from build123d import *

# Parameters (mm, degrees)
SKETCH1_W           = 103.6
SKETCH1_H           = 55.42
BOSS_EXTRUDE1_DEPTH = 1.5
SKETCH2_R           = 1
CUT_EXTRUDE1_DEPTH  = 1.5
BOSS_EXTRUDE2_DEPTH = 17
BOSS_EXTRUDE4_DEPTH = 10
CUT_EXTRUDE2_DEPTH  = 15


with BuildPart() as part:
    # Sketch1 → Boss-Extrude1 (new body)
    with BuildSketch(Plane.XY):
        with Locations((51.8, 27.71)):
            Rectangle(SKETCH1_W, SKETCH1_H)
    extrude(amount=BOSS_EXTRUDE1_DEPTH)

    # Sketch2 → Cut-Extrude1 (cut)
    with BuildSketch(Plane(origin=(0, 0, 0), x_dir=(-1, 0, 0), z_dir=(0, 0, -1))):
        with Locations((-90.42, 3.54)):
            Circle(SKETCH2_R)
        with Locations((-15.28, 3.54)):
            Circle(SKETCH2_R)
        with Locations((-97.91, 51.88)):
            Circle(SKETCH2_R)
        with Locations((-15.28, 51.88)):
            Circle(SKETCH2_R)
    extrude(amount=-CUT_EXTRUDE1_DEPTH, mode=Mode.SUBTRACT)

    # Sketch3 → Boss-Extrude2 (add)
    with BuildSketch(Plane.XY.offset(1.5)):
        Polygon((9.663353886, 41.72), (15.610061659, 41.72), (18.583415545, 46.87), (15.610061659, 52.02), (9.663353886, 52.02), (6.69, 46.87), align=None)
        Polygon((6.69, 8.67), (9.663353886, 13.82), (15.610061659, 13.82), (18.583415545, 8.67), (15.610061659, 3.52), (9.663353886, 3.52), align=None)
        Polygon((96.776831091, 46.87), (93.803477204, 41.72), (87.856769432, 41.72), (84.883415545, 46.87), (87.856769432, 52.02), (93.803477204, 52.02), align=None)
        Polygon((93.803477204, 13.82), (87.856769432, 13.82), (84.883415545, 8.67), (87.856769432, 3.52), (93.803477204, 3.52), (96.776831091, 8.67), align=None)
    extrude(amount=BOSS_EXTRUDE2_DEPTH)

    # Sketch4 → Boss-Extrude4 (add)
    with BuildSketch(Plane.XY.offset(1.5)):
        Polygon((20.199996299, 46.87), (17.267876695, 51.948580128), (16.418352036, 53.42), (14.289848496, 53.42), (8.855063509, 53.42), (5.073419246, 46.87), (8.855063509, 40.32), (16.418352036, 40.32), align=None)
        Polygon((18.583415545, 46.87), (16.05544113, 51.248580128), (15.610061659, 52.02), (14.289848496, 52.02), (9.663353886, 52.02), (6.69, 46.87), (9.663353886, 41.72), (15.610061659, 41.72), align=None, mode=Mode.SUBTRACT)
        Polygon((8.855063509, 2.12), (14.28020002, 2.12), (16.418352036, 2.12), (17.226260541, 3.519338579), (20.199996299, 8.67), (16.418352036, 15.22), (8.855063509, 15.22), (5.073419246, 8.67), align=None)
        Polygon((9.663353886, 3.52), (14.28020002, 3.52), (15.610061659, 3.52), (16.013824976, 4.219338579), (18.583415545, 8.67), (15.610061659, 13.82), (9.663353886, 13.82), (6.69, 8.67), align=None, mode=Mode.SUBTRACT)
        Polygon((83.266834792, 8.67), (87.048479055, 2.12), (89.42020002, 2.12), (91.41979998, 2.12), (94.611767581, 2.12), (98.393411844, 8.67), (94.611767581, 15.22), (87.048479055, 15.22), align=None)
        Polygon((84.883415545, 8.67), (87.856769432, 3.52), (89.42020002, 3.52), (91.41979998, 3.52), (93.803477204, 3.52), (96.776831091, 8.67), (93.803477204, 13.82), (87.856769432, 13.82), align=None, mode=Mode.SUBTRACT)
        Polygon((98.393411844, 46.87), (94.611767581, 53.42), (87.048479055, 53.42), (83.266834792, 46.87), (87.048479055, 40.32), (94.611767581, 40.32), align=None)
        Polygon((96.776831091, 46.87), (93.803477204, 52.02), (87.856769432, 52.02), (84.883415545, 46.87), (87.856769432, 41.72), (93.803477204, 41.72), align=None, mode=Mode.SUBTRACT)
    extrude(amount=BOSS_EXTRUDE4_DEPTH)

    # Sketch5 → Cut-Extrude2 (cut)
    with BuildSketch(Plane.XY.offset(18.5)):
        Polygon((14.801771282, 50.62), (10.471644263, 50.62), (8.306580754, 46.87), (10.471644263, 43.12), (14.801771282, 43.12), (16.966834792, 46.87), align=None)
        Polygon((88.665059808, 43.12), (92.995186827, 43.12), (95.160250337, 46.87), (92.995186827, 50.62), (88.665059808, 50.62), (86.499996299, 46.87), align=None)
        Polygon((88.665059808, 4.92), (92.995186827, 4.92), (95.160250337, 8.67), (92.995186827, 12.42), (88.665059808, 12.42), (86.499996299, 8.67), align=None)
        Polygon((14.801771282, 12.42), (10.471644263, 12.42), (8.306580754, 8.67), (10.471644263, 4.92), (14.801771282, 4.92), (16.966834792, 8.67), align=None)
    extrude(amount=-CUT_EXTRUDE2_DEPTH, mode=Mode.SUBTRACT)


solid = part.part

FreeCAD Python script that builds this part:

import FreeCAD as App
import Part
import Sketcher
from FreeCAD import Vector
Q = App.Units.Quantity

doc = App.newDocument("Part")
body = doc.addObject("PartDesign::Body", "Body")

# Sketch on XY plane
sketch1 = body.newObject("Sketcher::SketchObject", "Sketch")
sketch1.AttachmentSupport = (doc.getObject("XY_Plane"), [""])
sketch1.MapMode = "FlatFace"
sketch1.addGeometry([
    Part.LineSegment(Vector(0, 55.42, 0), Vector(0, 0, 0)),
    Part.LineSegment(Vector(0, 0, 0), Vector(103.6, 0, 0)),
    Part.LineSegment(Vector(103.6, 0, 0), Vector(103.6, 55.42, 0)),
    Part.LineSegment(Vector(103.6, 55.42, 0), Vector(0, 55.42, 0)),
], False)
sketch1.addConstraint([
    Sketcher.Constraint("Coincident", 0, 2, 1, 1),
    Sketcher.Constraint("Coincident", 1, 2, 2, 1),
    Sketcher.Constraint("Coincident", 2, 2, 3, 1),
    Sketcher.Constraint("Coincident", 3, 2, 0, 1),
    Sketcher.Constraint("Vertical", 0),
    Sketcher.Constraint("Horizontal", 1),
    Sketcher.Constraint("Vertical", 2),
    Sketcher.Constraint("Horizontal", 3),
    Sketcher.Constraint("Coincident", 0, 2, -1, 1),
    Sketcher.Constraint("DistanceX", 1, 1, 1, 2, 103.6),
    Sketcher.Constraint("DistanceY", 0, 2, 0, 1, 55.42),
])
pad1 = body.newObject("PartDesign::Pad", "Pad")
pad1.Profile = sketch1
pad1.Length = 1.5

# Sketch on XY plane
sketch2 = body.newObject("Sketcher::SketchObject", "Sketch001")
sketch2.AttachmentSupport = (doc.getObject("XY_Plane"), [""])
sketch2.MapMode = "FlatFace"
sketch2.addGeometry([
    Part.Circle(Vector(90.42, 3.54, 0), Vector(0, 0, 1), 1),
    Part.Circle(Vector(15.28, 3.54, 0), Vector(0, 0, 1), 1),
    Part.Circle(Vector(97.91, 51.88, 0), Vector(0, 0, 1), 1),
    Part.Circle(Vector(15.28, 51.88, 0), Vector(0, 0, 1), 1),
], False)
sketch2.addConstraint([
    Sketcher.Constraint("Equal", 0, 1),
    Sketcher.Constraint("Equal", 1, 2),
    Sketcher.Constraint("Equal", 2, 3),
    Sketcher.Constraint("Horizontal", 0, 3, 1, 3),
    Sketcher.Constraint("Horizontal", 2, 3, 3, 3),
    Sketcher.Constraint("Vertical", 1, 3, 3, 3),
    Sketcher.Constraint("Diameter", 0, 2.0),
    Sketcher.Constraint("DistanceX", -1, 1, 0, 3, 90.42),
    Sketcher.Constraint("DistanceY", -1, 1, 0, 3, 3.54),
    Sketcher.Constraint("DistanceX", -1, 1, 1, 3, 15.28),
    Sketcher.Constraint("DistanceX", -1, 1, 2, 3, 97.91),
    Sketcher.Constraint("DistanceY", -1, 1, 2, 3, 51.88),
])
pocket1 = body.newObject("PartDesign::Pocket", "Pocket")
pocket1.Profile = sketch2
pocket1.Length = 1.5
pocket1.Reversed = True

# Sketch on XY plane
sketch3 = body.newObject("Sketcher::SketchObject", "Sketch002")
sketch3.AttachmentSupport = (doc.getObject("XY_Plane"), [""])
sketch3.MapMode = "FlatFace"
sketch3.AttachmentOffset = App.Placement(Vector(0, 0, 1.5), App.Rotation())
sketch3.addGeometry([
    Part.LineSegment(Vector(9.663354, 41.72, 0), Vector(15.610062, 41.72, 0)),  # 0
    Part.LineSegment(Vector(15.610062, 41.72, 0), Vector(18.583416, 46.87, 0)),  # 1
    Part.LineSegment(Vector(18.583416, 46.87, 0), Vector(15.610062, 52.02, 0)),  # 2
    Part.LineSegment(Vector(15.610062, 52.02, 0), Vector(9.663354, 52.02, 0)),  # 3
    Part.LineSegment(Vector(9.663354, 52.02, 0), Vector(6.69, 46.87, 0)),  # 4
    Part.LineSegment(Vector(6.69, 46.87, 0), Vector(9.663354, 41.72, 0)),  # 5
    Part.LineSegment(Vector(9.663354, 13.82, 0), Vector(6.69, 8.67, 0)),  # 6
    Part.LineSegment(Vector(6.69, 8.67, 0), Vector(9.663354, 3.52, 0)),  # 7
    Part.LineSegment(Vector(9.663354, 3.52, 0), Vector(15.610062, 3.52, 0)),  # 8
    Part.LineSegment(Vector(15.610062, 3.52, 0), Vector(18.583416, 8.67, 0)),  # 9
    Part.LineSegment(Vector(18.583416, 8.67, 0), Vector(15.610062, 13.82, 0)),  # 10
    Part.LineSegment(Vector(15.610062, 13.82, 0), Vector(9.663354, 13.82, 0)),  # 11
    Part.LineSegment(Vector(93.803477, 41.72, 0), Vector(96.776831, 46.87, 0)),  # 12
    Part.LineSegment(Vector(96.776831, 46.87, 0), Vector(93.803477, 52.02, 0)),  # 13
    Part.LineSegment(Vector(93.803477, 52.02, 0), Vector(87.856769, 52.02, 0)),  # 14
    Part.LineSegment(Vector(87.856769, 52.02, 0), Vector(84.883416, 46.87, 0)),  # 15
    Part.LineSegment(Vector(84.883416, 46.87, 0), Vector(87.856769, 41.72, 0)),  # 16
    Part.LineSegment(Vector(87.856769, 41.72, 0), Vector(93.803477, 41.72, 0)),  # 17
    Part.LineSegment(Vector(93.803477, 13.82, 0), Vector(87.856769, 13.82, 0)),  # 18
    Part.LineSegment(Vector(87.856769, 13.82, 0), Vector(84.883416, 8.67, 0)),  # 19
    Part.LineSegment(Vector(84.883416, 8.67, 0), Vector(87.856769, 3.52, 0)),  # 20
    Part.LineSegment(Vector(87.856769, 3.52, 0), Vector(93.803477, 3.52, 0)),  # 21
    Part.LineSegment(Vector(93.803477, 3.52, 0), Vector(96.776831, 8.67, 0)),  # 22
    Part.LineSegment(Vector(96.776831, 8.67, 0), Vector(93.803477, 13.82, 0)),  # 23
], False)
sketch3.addConstraint([
    Sketcher.Constraint("Coincident", 0, 2, 1, 1),
    Sketcher.Constraint("Coincident", 1, 2, 2, 1),
    Sketcher.Constraint("Coincident", 2, 2, 3, 1),
    Sketcher.Constraint("Coincident", 3, 2, 4, 1),
    Sketcher.Constraint("Coincident", 4, 2, 5, 1),
    Sketcher.Constraint("Coincident", 5, 2, 0, 1),
    Sketcher.Constraint("Coincident", 6, 2, 7, 1),
    Sketcher.Constraint("Coincident", 7, 2, 8, 1),
    Sketcher.Constraint("Coincident", 8, 2, 9, 1),
    Sketcher.Constraint("Coincident", 9, 2, 10, 1),
    Sketcher.Constraint("Coincident", 10, 2, 11, 1),
    Sketcher.Constraint("Coincident", 11, 2, 6, 1),
    Sketcher.Constraint("Coincident", 12, 2, 13, 1),
    Sketcher.Constraint("Coincident", 13, 2, 14, 1),
    Sketcher.Constraint("Coincident", 14, 2, 15, 1),
    Sketcher.Constraint("Coincident", 15, 2, 16, 1),
    Sketcher.Constraint("Coincident", 16, 2, 17, 1),
    Sketcher.Constraint("Coincident", 17, 2, 12, 1),
    Sketcher.Constraint("Coincident", 18, 2, 19, 1),
    Sketcher.Constraint("Coincident", 19, 2, 20, 1),
    Sketcher.Constraint("Coincident", 20, 2, 21, 1),
    Sketcher.Constraint("Coincident", 21, 2, 22, 1),
    Sketcher.Constraint("Coincident", 22, 2, 23, 1),
    Sketcher.Constraint("Coincident", 23, 2, 18, 1),
    Sketcher.Constraint("Horizontal", 0),
    Sketcher.Constraint("Horizontal", 3),
    Sketcher.Constraint("Horizontal", 8),
    Sketcher.Constraint("Horizontal", 11),
    Sketcher.Constraint("Horizontal", 14),
    Sketcher.Constraint("Horizontal", 17),
    Sketcher.Constraint("Horizontal", 18),
    Sketcher.Constraint("Horizontal", 21),
    Sketcher.Constraint("Parallel", 1, 4),
    Sketcher.Constraint("Parallel", 2, 5),
    Sketcher.Constraint("Parallel", 4, 6),
    Sketcher.Constraint("Parallel", 5, 7),
    Sketcher.Constraint("Parallel", 6, 9),
    Sketcher.Constraint("Parallel", 7, 10),
    Sketcher.Constraint("Parallel", 9, 12),
    Sketcher.Constraint("Parallel", 10, 13),
    Sketcher.Constraint("Parallel", 12, 15),
    Sketcher.Constraint("Parallel", 13, 16),
    Sketcher.Constraint("Parallel", 15, 19),
    Sketcher.Constraint("Parallel", 16, 20),
    Sketcher.Constraint("Parallel", 19, 22),
    Sketcher.Constraint("Parallel", 20, 23),
    Sketcher.Constraint("Horizontal", 1, 2, 4, 2),
    Sketcher.Constraint("Horizontal", 6, 2, 9, 2),
    Sketcher.Constraint("Horizontal", 4, 2, 12, 2),
    Sketcher.Constraint("Horizontal", 3, 2, 13, 2),
    Sketcher.Constraint("Horizontal", 12, 2, 15, 2),
    Sketcher.Constraint("Horizontal", 5, 2, 16, 2),
    Sketcher.Constraint("Horizontal", 11, 2, 18, 2),
    Sketcher.Constraint("Horizontal", 9, 2, 19, 2),
    Sketcher.Constraint("Horizontal", 8, 2, 20, 2),
    Sketcher.Constraint("Horizontal", 19, 2, 22, 2),
    Sketcher.Constraint("Vertical", 0, 2, 2, 2),
    Sketcher.Constraint("Vertical", 3, 2, 5, 2),
    Sketcher.Constraint("Vertical", 4, 2, 6, 2),
    Sketcher.Constraint("Vertical", 5, 2, 7, 2),
    Sketcher.Constraint("Vertical", 2, 2, 8, 2),
    Sketcher.Constraint("Vertical", 8, 2, 10, 2),
    Sketcher.Constraint("Vertical", 16, 2, 18, 2),
    Sketcher.Constraint("Vertical", 17, 2, 21, 2),
    Sketcher.Constraint("Equal", 11, 14),
    Sketcher.Constraint("Angle", 1, Q("60 deg")),
    Sketcher.Constraint("DistanceY", 0, 2, 2, 2, 10.3),
    Sketcher.Constraint("DistanceY", 6, 2, 4, 2, 38.2),
    Sketcher.Constraint("DistanceX", 1, 2, 15, 2, 66.3),
    Sketcher.Constraint("DistanceY", -1, 1, 0, 2, 41.72),
    Sketcher.Constraint("DistanceX", -1, 1, 4, 2, 6.69),
    Sketcher.Constraint("DistanceX", 0, 1, 0, 2, 5.946708),
])
pad2 = body.newObject("PartDesign::Pad", "Pad001")
pad2.Profile = sketch3
pad2.Length = 17

# Sketch on XY plane
sketch4 = body.newObject("Sketcher::SketchObject", "Sketch003")
sketch4.AttachmentSupport = (doc.getObject("XY_Plane"), [""])
sketch4.MapMode = "FlatFace"
sketch4.AttachmentOffset = App.Placement(Vector(0, 0, 1.5), App.Rotation())
sketch4.addGeometry([
    Part.LineSegment(Vector(20.199996, 46.87, 0), Vector(17.267877, 51.94858, 0)),  # 0
    Part.LineSegment(Vector(17.267877, 51.94858, 0), Vector(16.418352, 53.42, 0)),  # 1
    Part.LineSegment(Vector(16.418352, 53.42, 0), Vector(8.855064, 53.42, 0)),  # 2
    Part.LineSegment(Vector(8.855064, 53.42, 0), Vector(5.073419, 46.87, 0)),  # 3
    Part.LineSegment(Vector(5.073419, 46.87, 0), Vector(8.855064, 40.32, 0)),  # 4
    Part.LineSegment(Vector(8.855064, 40.32, 0), Vector(16.418352, 40.32, 0)),  # 5
    Part.LineSegment(Vector(16.418352, 40.32, 0), Vector(20.199996, 46.87, 0)),  # 6
    Part.LineSegment(Vector(16.055441, 51.24858, 0), Vector(18.583416, 46.87, 0)),  # 7
    Part.LineSegment(Vector(18.583416, 46.87, 0), Vector(15.610062, 41.72, 0)),  # 8
    Part.LineSegment(Vector(15.610062, 41.72, 0), Vector(9.663354, 41.72, 0)),  # 9
    Part.LineSegment(Vector(9.663354, 41.72, 0), Vector(6.69, 46.87, 0)),  # 10
    Part.LineSegment(Vector(6.69, 46.87, 0), Vector(9.663354, 52.02, 0)),  # 11
    Part.LineSegment(Vector(9.663354, 52.02, 0), Vector(15.610062, 52.02, 0)),  # 12
    Part.LineSegment(Vector(15.610062, 52.02, 0), Vector(16.055441, 51.24858, 0)),  # 13
    Part.LineSegment(Vector(8.855064, 2.12, 0), Vector(16.418352, 2.12, 0)),  # 14
    Part.LineSegment(Vector(16.418352, 2.12, 0), Vector(17.226261, 3.519339, 0)),  # 15
    Part.LineSegment(Vector(17.226261, 3.519339, 0), Vector(20.199996, 8.67, 0)),  # 16
    Part.LineSegment(Vector(20.199996, 8.67, 0), Vector(16.418352, 15.22, 0)),  # 17
    Part.LineSegment(Vector(16.418352, 15.22, 0), Vector(8.855064, 15.22, 0)),  # 18
    Part.LineSegment(Vector(8.855064, 15.22, 0), Vector(5.073419, 8.67, 0)),  # 19
    Part.LineSegment(Vector(5.073419, 8.67, 0), Vector(8.855064, 2.12, 0)),  # 20
    Part.LineSegment(Vector(15.610062, 3.52, 0), Vector(9.663354, 3.52, 0)),  # 21
    Part.LineSegment(Vector(9.663354, 3.52, 0), Vector(6.69, 8.67, 0)),  # 22
    Part.LineSegment(Vector(6.69, 8.67, 0), Vector(9.663354, 13.82, 0)),  # 23
    Part.LineSegment(Vector(9.663354, 13.82, 0), Vector(15.610062, 13.82, 0)),  # 24
    Part.LineSegment(Vector(15.610062, 13.82, 0), Vector(18.583416, 8.67, 0)),  # 25
    Part.LineSegment(Vector(18.583416, 8.67, 0), Vector(16.013825, 4.219339, 0)),  # 26
    Part.LineSegment(Vector(16.013825, 4.219339, 0), Vector(15.610062, 3.52, 0)),  # 27
    Part.LineSegment(Vector(83.266835, 8.67, 0), Vector(87.048479, 2.12, 0)),  # 28
    Part.LineSegment(Vector(87.048479, 2.12, 0), Vector(94.611768, 2.12, 0)),  # 29
    Part.LineSegment(Vector(94.611768, 2.12, 0), Vector(98.393412, 8.67, 0)),  # 30
    Part.LineSegment(Vector(98.393412, 8.67, 0), Vector(94.611768, 15.22, 0)),  # 31
    Part.LineSegment(Vector(94.611768, 15.22, 0), Vector(87.048479, 15.22, 0)),  # 32
    Part.LineSegment(Vector(87.048479, 15.22, 0), Vector(83.266835, 8.67, 0)),  # 33
    Part.LineSegment(Vector(87.856769, 3.52, 0), Vector(84.883416, 8.67, 0)),  # 34
    Part.LineSegment(Vector(84.883416, 8.67, 0), Vector(87.856769, 13.82, 0)),  # 35
    Part.LineSegment(Vector(87.856769, 13.82, 0), Vector(93.803477, 13.82, 0)),  # 36
    Part.LineSegment(Vector(93.803477, 13.82, 0), Vector(96.776831, 8.67, 0)),  # 37
    Part.LineSegment(Vector(96.776831, 8.67, 0), Vector(93.803477, 3.52, 0)),  # 38
    Part.LineSegment(Vector(93.803477, 3.52, 0), Vector(87.856769, 3.52, 0)),  # 39
    Part.LineSegment(Vector(98.393412, 46.87, 0), Vector(94.611768, 53.42, 0)),  # 40
    Part.LineSegment(Vector(94.611768, 53.42, 0), Vector(87.048479, 53.42, 0)),  # 41
    Part.LineSegment(Vector(87.048479, 53.42, 0), Vector(83.266835, 46.87, 0)),  # 42
    Part.LineSegment(Vector(83.266835, 46.87, 0), Vector(87.048479, 40.32, 0)),  # 43
    Part.LineSegment(Vector(87.048479, 40.32, 0), Vector(94.611768, 40.32, 0)),  # 44
    Part.LineSegment(Vector(94.611768, 40.32, 0), Vector(98.393412, 46.87, 0)),  # 45
    Part.LineSegment(Vector(93.803477, 52.02, 0), Vector(96.776831, 46.87, 0)),  # 46
    Part.LineSegment(Vector(96.776831, 46.87, 0), Vector(93.803477, 41.72, 0)),  # 47
    Part.LineSegment(Vector(93.803477, 41.72, 0), Vector(87.856769, 41.72, 0)),  # 48
    Part.LineSegment(Vector(87.856769, 41.72, 0), Vector(84.883416, 46.87, 0)),  # 49
    Part.LineSegment(Vector(84.883416, 46.87, 0), Vector(87.856769, 52.02, 0)),  # 50
    Part.LineSegment(Vector(87.856769, 52.02, 0), Vector(93.803477, 52.02, 0)),  # 51
], False)
sketch4.addConstraint([
    Sketcher.Constraint("Coincident", 0, 2, 1, 1),
    Sketcher.Constraint("Coincident", 1, 2, 2, 1),
    Sketcher.Constraint("Coincident", 2, 2, 3, 1),
    Sketcher.Constraint("Coincident", 3, 2, 4, 1),
    Sketcher.Constraint("Coincident", 4, 2, 5, 1),
    Sketcher.Constraint("Coincident", 5, 2, 6, 1),
    Sketcher.Constraint("Coincident", 6, 2, 0, 1),
    Sketcher.Constraint("Coincident", 7, 2, 8, 1),
    Sketcher.Constraint("Coincident", 8, 2, 9, 1),
    Sketcher.Constraint("Coincident", 9, 2, 10, 1),
    Sketcher.Constraint("Coincident", 10, 2, 11, 1),
    Sketcher.Constraint("Coincident", 11, 2, 12, 1),
    Sketcher.Constraint("Coincident", 12, 2, 13, 1),
    Sketcher.Constraint("Coincident", 13, 2, 7, 1),
    Sketcher.Constraint("Coincident", 14, 2, 15, 1),
    Sketcher.Constraint("Coincident", 15, 2, 16, 1),
    Sketcher.Constraint("Coincident", 16, 2, 17, 1),
    Sketcher.Constraint("Coincident", 17, 2, 18, 1),
    Sketcher.Constraint("Coincident", 18, 2, 19, 1),
    Sketcher.Constraint("Coincident", 19, 2, 20, 1),
    Sketcher.Constraint("Coincident", 20, 2, 14, 1),
    Sketcher.Constraint("Coincident", 21, 2, 22, 1),
    Sketcher.Constraint("Coincident", 22, 2, 23, 1),
    Sketcher.Constraint("Coincident", 23, 2, 24, 1),
    Sketcher.Constraint("Coincident", 24, 2, 25, 1),
    Sketcher.Constraint("Coincident", 25, 2, 26, 1),
    Sketcher.Constraint("Coincident", 26, 2, 27, 1),
    Sketcher.Constraint("Coincident", 27, 2, 21, 1),
    Sketcher.Constraint("Coincident", 28, 2, 29, 1),
    Sketcher.Constraint("Coincident", 29, 2, 30, 1),
    Sketcher.Constraint("Coincident", 30, 2, 31, 1),
    Sketcher.Constraint("Coincident", 31, 2, 32, 1),
    Sketcher.Constraint("Coincident", 32, 2, 33, 1),
    Sketcher.Constraint("Coincident", 33, 2, 28, 1),
    Sketcher.Constraint("Coincident", 34, 2, 35, 1),
    Sketcher.Constraint("Coincident", 35, 2, 36, 1),
    Sketcher.Constraint("Coincident", 36, 2, 37, 1),
    Sketcher.Constraint("Coincident", 37, 2, 38, 1),
    Sketcher.Constraint("Coincident", 38, 2, 39, 1),
    Sketcher.Constraint("Coincident", 39, 2, 34, 1),
    Sketcher.Constraint("Coincident", 40, 2, 41, 1),
    Sketcher.Constraint("Coincident", 41, 2, 42, 1),
    Sketcher.Constraint("Coincident", 42, 2, 43, 1),
    Sketcher.Constraint("Coincident", 43, 2, 44, 1),
    Sketcher.Constraint("Coincident", 44, 2, 45, 1),
    Sketcher.Constraint("Coincident", 45, 2, 40, 1),
    Sketcher.Constraint("Coincident", 46, 2, 47, 1),
    Sketcher.Constraint("Coincident", 47, 2, 48, 1),
    Sketcher.Constraint("Coincident", 48, 2, 49, 1),
    Sketcher.Constraint("Coincident", 49, 2, 50, 1),
    Sketcher.Constraint("Coincident", 50, 2, 51, 1),
    Sketcher.Constraint("Coincident", 51, 2, 46, 1),
    Sketcher.Constraint("Horizontal", 2),
    Sketcher.Constraint("Horizontal", 5),
    Sketcher.Constraint("Horizontal", 9),
    Sketcher.Constraint("Horizontal", 12),
    Sketcher.Constraint("Horizontal", 14),
    Sketcher.Constraint("Horizontal", 18),
    Sketcher.Constraint("Horizontal", 21),
    Sketcher.Constraint("Horizontal", 24),
    Sketcher.Constraint("Horizontal", 29),
    Sketcher.Constraint("Horizontal", 32),
    Sketcher.Constraint("Horizontal", 36),
    Sketcher.Constraint("Horizontal", 39),
    Sketcher.Constraint("Horizontal", 41),
    Sketcher.Constraint("Horizontal", 44),
    Sketcher.Constraint("Horizontal", 48),
    Sketcher.Constraint("Horizontal", 51),
    Sketcher.Constraint("Parallel", 0, 1),
    Sketcher.Constraint("Parallel", 1, 4),
    Sketcher.Constraint("Parallel", 3, 6),
    Sketcher.Constraint("Parallel", 4, 7),
    Sketcher.Constraint("Parallel", 6, 8),
    Sketcher.Constraint("Parallel", 7, 10),
    Sketcher.Constraint("Parallel", 8, 11),
    Sketcher.Constraint("Parallel", 10, 13),
    Sketcher.Constraint("Parallel", 11, 15),
    Sketcher.Constraint("Parallel", 15, 16),
    Sketcher.Constraint("Parallel", 13, 17),
    Sketcher.Constraint("Parallel", 16, 19),
    Sketcher.Constraint("Parallel", 17, 20),
    Sketcher.Constraint("Parallel", 20, 22),
    Sketcher.Constraint("Parallel", 19, 23),
    Sketcher.Constraint("Parallel", 22, 25),
    Sketcher.Constraint("Parallel", 23, 26),
    Sketcher.Constraint("Parallel", 26, 27),
    Sketcher.Constraint("Parallel", 25, 28),
    Sketcher.Constraint("Parallel", 27, 30),
    Sketcher.Constraint("Parallel", 28, 31),
    Sketcher.Constraint("Parallel", 30, 33),
    Sketcher.Constraint("Parallel", 31, 34),
    Sketcher.Constraint("Parallel", 33, 35),
    Sketcher.Constraint("Parallel", 34, 37),
    Sketcher.Constraint("Parallel", 35, 38),
    Sketcher.Constraint("Parallel", 37, 40),
    Sketcher.Constraint("Parallel", 38, 42),
    Sketcher.Constraint("Parallel", 40, 43),
    Sketcher.Constraint("Parallel", 42, 45),
    Sketcher.Constraint("Parallel", 43, 46),
    Sketcher.Constraint("Parallel", 45, 47),
    Sketcher.Constraint("Parallel", 46, 49),
    Sketcher.Constraint("Parallel", 47, 50),
    Sketcher.Constraint("Horizontal", 3, 2, 6, 2),
    Sketcher.Constraint("Horizontal", 6, 2, 7, 2),
    Sketcher.Constraint("Horizontal", 7, 2, 10, 2),
    Sketcher.Constraint("Horizontal", 16, 2, 19, 2),
    Sketcher.Constraint("Horizontal", 19, 2, 22, 2),
    Sketcher.Constraint("Horizontal", 22, 2, 25, 2),
    Sketcher.Constraint("Horizontal", 20, 2, 28, 2),
    Sketcher.Constraint("Horizontal", 25, 2, 30, 2),
    Sketcher.Constraint("Horizontal", 18, 2, 31, 2),
    Sketcher.Constraint("Horizontal", 30, 2, 33, 2),
    Sketcher.Constraint("Horizontal", 33, 2, 34, 2),
    Sketcher.Constraint("Horizontal", 24, 2, 35, 2),
    Sketcher.Constraint("Horizontal", 34, 2, 37, 2),
    Sketcher.Constraint("Horizontal", 27, 2, 38, 2),
    Sketcher.Constraint("Horizontal", 2, 2, 40, 2),
    Sketcher.Constraint("Horizontal", 10, 2, 42, 2),
    Sketcher.Constraint("Horizontal", 5, 2, 43, 2),
    Sketcher.Constraint("Horizontal", 42, 2, 45, 2),
    Sketcher.Constraint("Horizontal", 45, 2, 46, 2),
    Sketcher.Constraint("Horizontal", 9, 2, 47, 2),
    Sketcher.Constraint("Horizontal", 46, 2, 49, 2),
    Sketcher.Constraint("Horizontal", 12, 2, 50, 2),
    Sketcher.Constraint("Vertical", 2, 2, 4, 2),
    Sketcher.Constraint("Vertical", 1, 2, 5, 2),
    Sketcher.Constraint("Vertical", 9, 2, 11, 2),
    Sketcher.Constraint("Vertical", 5, 2, 14, 2),
    Sketcher.Constraint("Vertical", 6, 2, 16, 2),
    Sketcher.Constraint("Vertical", 14, 2, 17, 2),
    Sketcher.Constraint("Vertical", 4, 2, 18, 2),
    Sketcher.Constraint("Vertical", 11, 2, 21, 2),
    Sketcher.Constraint("Vertical", 10, 2, 22, 2),
    Sketcher.Constraint("Vertical", 21, 2, 23, 2),
    Sketcher.Constraint("Vertical", 12, 2, 24, 2),
    Sketcher.Constraint("Vertical", 31, 2, 40, 2),
    Sketcher.Constraint("Vertical", 32, 2, 41, 2),
    Sketcher.Constraint("Vertical", 37, 2, 46, 2),
    Sketcher.Constraint("Vertical", 39, 2, 48, 2),
    Sketcher.Constraint("Equal", 18, 29),
    Sketcher.Constraint("Equal", 24, 36),
    Sketcher.Constraint("Angle", 0, Q("120 deg")),
    Sketcher.Constraint("DistanceY", 4, 2, 2, 2, 13.1),
    Sketcher.Constraint("DistanceY", 5, 2, 8, 2, 1.4),
    Sketcher.Constraint("DistanceY", 13, 2, 0, 2, 0.7),
    Sketcher.Constraint("DistanceY", 14, 2, 5, 2, 38.2),
    Sketcher.Constraint("DistanceY", 15, 2, 26, 2, 0.7),
    Sketcher.Constraint("DistanceY", -1, 1, 1, 2, 53.42),
    Sketcher.Constraint("DistanceX", -1, 1, 10, 2, 6.69),
    Sketcher.Constraint("DistanceX", 4, 2, 8, 2, 6.754998),
    Sketcher.Constraint("DistanceX", 9, 2, 5, 2, 6.754998),
    Sketcher.Constraint("DistanceX", 35, 2, 31, 2, 6.754998),
    Sketcher.Constraint("DistanceX", 2, 2, 2, 1, 7.563289),
    Sketcher.Constraint("DistanceX", 8, 2, 15, 2, 1.616199),
    Sketcher.Constraint("Distance", 0, 5.864239),
    Sketcher.Constraint("DistanceX", -1, 1, 28, 2, 87.048479),
])
pad3 = body.newObject("PartDesign::Pad", "Pad002")
pad3.Profile = sketch4
pad3.Length = 10

# Sketch on XY plane
sketch5 = body.newObject("Sketcher::SketchObject", "Sketch004")
sketch5.AttachmentSupport = (doc.getObject("XY_Plane"), [""])
sketch5.MapMode = "FlatFace"
sketch5.AttachmentOffset = App.Placement(Vector(0, 0, 18.5), App.Rotation())
sketch5.addGeometry([
    Part.LineSegment(Vector(14.801771, 50.62, 0), Vector(10.471644, 50.62, 0)),  # 0
    Part.LineSegment(Vector(10.471644, 50.62, 0), Vector(8.306581, 46.87, 0)),  # 1
    Part.LineSegment(Vector(8.306581, 46.87, 0), Vector(10.471644, 43.12, 0)),  # 2
    Part.LineSegment(Vector(10.471644, 43.12, 0), Vector(14.801771, 43.12, 0)),  # 3
    Part.LineSegment(Vector(14.801771, 43.12, 0), Vector(16.966835, 46.87, 0)),  # 4
    Part.LineSegment(Vector(16.966835, 46.87, 0), Vector(14.801771, 50.62, 0)),  # 5
    Part.LineSegment(Vector(88.66506, 43.12, 0), Vector(92.995187, 43.12, 0)),  # 6
    Part.LineSegment(Vector(92.995187, 43.12, 0), Vector(95.16025, 46.87, 0)),  # 7
    Part.LineSegment(Vector(95.16025, 46.87, 0), Vector(92.995187, 50.62, 0)),  # 8
    Part.LineSegment(Vector(92.995187, 50.62, 0), Vector(88.66506, 50.62, 0)),  # 9
    Part.LineSegment(Vector(88.66506, 50.62, 0), Vector(86.499996, 46.87, 0)),  # 10
    Part.LineSegment(Vector(86.499996, 46.87, 0), Vector(88.66506, 43.12, 0)),  # 11
    Part.LineSegment(Vector(88.66506, 4.92, 0), Vector(92.995187, 4.92, 0)),  # 12
    Part.LineSegment(Vector(92.995187, 4.92, 0), Vector(95.16025, 8.67, 0)),  # 13
    Part.LineSegment(Vector(95.16025, 8.67, 0), Vector(92.995187, 12.42, 0)),  # 14
    Part.LineSegment(Vector(92.995187, 12.42, 0), Vector(88.66506, 12.42, 0)),  # 15
    Part.LineSegment(Vector(88.66506, 12.42, 0), Vector(86.499996, 8.67, 0)),  # 16
    Part.LineSegment(Vector(86.499996, 8.67, 0), Vector(88.66506, 4.92, 0)),  # 17
    Part.LineSegment(Vector(14.801771, 12.42, 0), Vector(10.471644, 12.42, 0)),  # 18
    Part.LineSegment(Vector(10.471644, 12.42, 0), Vector(8.306581, 8.67, 0)),  # 19
    Part.LineSegment(Vector(8.306581, 8.67, 0), Vector(10.471644, 4.92, 0)),  # 20
    Part.LineSegment(Vector(10.471644, 4.92, 0), Vector(14.801771, 4.92, 0)),  # 21
    Part.LineSegment(Vector(14.801771, 4.92, 0), Vector(16.966835, 8.67, 0)),  # 22
    Part.LineSegment(Vector(16.966835, 8.67, 0), Vector(14.801771, 12.42, 0)),  # 23
], False)
sketch5.addConstraint([
    Sketcher.Constraint("Coincident", 0, 2, 1, 1),
    Sketcher.Constraint("Coincident", 1, 2, 2, 1),
    Sketcher.Constraint("Coincident", 2, 2, 3, 1),
    Sketcher.Constraint("Coincident", 3, 2, 4, 1),
    Sketcher.Constraint("Coincident", 4, 2, 5, 1),
    Sketcher.Constraint("Coincident", 5, 2, 0, 1),
    Sketcher.Constraint("Coincident", 6, 2, 7, 1),
    Sketcher.Constraint("Coincident", 7, 2, 8, 1),
    Sketcher.Constraint("Coincident", 8, 2, 9, 1),
    Sketcher.Constraint("Coincident", 9, 2, 10, 1),
    Sketcher.Constraint("Coincident", 10, 2, 11, 1),
    Sketcher.Constraint("Coincident", 11, 2, 6, 1),
    Sketcher.Constraint("Coincident", 12, 2, 13, 1),
    Sketcher.Constraint("Coincident", 13, 2, 14, 1),
    Sketcher.Constraint("Coincident", 14, 2, 15, 1),
    Sketcher.Constraint("Coincident", 15, 2, 16, 1),
    Sketcher.Constraint("Coincident", 16, 2, 17, 1),
    Sketcher.Constraint("Coincident", 17, 2, 12, 1),
    Sketcher.Constraint("Coincident", 18, 2, 19, 1),
    Sketcher.Constraint("Coincident", 19, 2, 20, 1),
    Sketcher.Constraint("Coincident", 20, 2, 21, 1),
    Sketcher.Constraint("Coincident", 21, 2, 22, 1),
    Sketcher.Constraint("Coincident", 22, 2, 23, 1),
    Sketcher.Constraint("Coincident", 23, 2, 18, 1),
    Sketcher.Constraint("Horizontal", 0),
    Sketcher.Constraint("Horizontal", 3),
    Sketcher.Constraint("Horizontal", 6),
    Sketcher.Constraint("Horizontal", 9),
    Sketcher.Constraint("Horizontal", 12),
    Sketcher.Constraint("Horizontal", 15),
    Sketcher.Constraint("Horizontal", 18),
    Sketcher.Constraint("Horizontal", 21),
    Sketcher.Constraint("Parallel", 1, 4),
    Sketcher.Constraint("Parallel", 2, 5),
    Sketcher.Constraint("Parallel", 4, 7),
    Sketcher.Constraint("Parallel", 5, 8),
    Sketcher.Constraint("Parallel", 7, 10),
    Sketcher.Constraint("Parallel", 8, 11),
    Sketcher.Constraint("Parallel", 10, 13),
    Sketcher.Constraint("Parallel", 11, 14),
    Sketcher.Constraint("Parallel", 13, 16),
    Sketcher.Constraint("Parallel", 14, 17),
    Sketcher.Constraint("Parallel", 16, 19),
    Sketcher.Constraint("Parallel", 17, 20),
    Sketcher.Constraint("Parallel", 19, 22),
    Sketcher.Constraint("Parallel", 20, 23),
    Sketcher.Constraint("Horizontal", 1, 2, 4, 2),
    Sketcher.Constraint("Horizontal", 3, 2, 6, 2),
    Sketcher.Constraint("Horizontal", 4, 2, 7, 2),
    Sketcher.Constraint("Horizontal", 5, 2, 8, 2),
    Sketcher.Constraint("Horizontal", 7, 2, 10, 2),
    Sketcher.Constraint("Horizontal", 13, 2, 16, 2),
    Sketcher.Constraint("Horizontal", 15, 2, 18, 2),
    Sketcher.Constraint("Horizontal", 16, 2, 19, 2),
    Sketcher.Constraint("Horizontal", 17, 2, 20, 2),
    Sketcher.Constraint("Horizontal", 19, 2, 22, 2),
    Sketcher.Constraint("Vertical", 0, 2, 2, 2),
    Sketcher.Constraint("Vertical", 3, 2, 5, 2),
    Sketcher.Constraint("Vertical", 8, 2, 12, 2),
    Sketcher.Constraint("Vertical", 7, 2, 13, 2),
    Sketcher.Constraint("Vertical", 12, 2, 14, 2),
    Sketcher.Constraint("Vertical", 11, 2, 15, 2),
    Sketcher.Constraint("Vertical", 2, 2, 18, 2),
    Sketcher.Constraint("Vertical", 5, 2, 21, 2),
    Sketcher.Constraint("Equal", 3, 6),
    Sketcher.Constraint("Angle", 1, Q("-120 deg")),
    Sketcher.Constraint("DistanceY", 2, 2, 0, 2, 7.5),
    Sketcher.Constraint("DistanceY", 12, 2, 6, 2, 38.2),
    Sketcher.Constraint("DistanceY", -1, 1, 0, 2, 50.62),
    Sketcher.Constraint("DistanceX", 0, 2, 0, 1, 4.330127),
    Sketcher.Constraint("DistanceX", -1, 1, 1, 2, 8.306581),
    Sketcher.Constraint("DistanceX", -1, 1, 7, 2, 95.16025),
])
pocket2 = body.newObject("PartDesign::Pocket", "Pocket001")
pocket2.Profile = sketch5
pocket2.Length = 15

doc.recompute()
